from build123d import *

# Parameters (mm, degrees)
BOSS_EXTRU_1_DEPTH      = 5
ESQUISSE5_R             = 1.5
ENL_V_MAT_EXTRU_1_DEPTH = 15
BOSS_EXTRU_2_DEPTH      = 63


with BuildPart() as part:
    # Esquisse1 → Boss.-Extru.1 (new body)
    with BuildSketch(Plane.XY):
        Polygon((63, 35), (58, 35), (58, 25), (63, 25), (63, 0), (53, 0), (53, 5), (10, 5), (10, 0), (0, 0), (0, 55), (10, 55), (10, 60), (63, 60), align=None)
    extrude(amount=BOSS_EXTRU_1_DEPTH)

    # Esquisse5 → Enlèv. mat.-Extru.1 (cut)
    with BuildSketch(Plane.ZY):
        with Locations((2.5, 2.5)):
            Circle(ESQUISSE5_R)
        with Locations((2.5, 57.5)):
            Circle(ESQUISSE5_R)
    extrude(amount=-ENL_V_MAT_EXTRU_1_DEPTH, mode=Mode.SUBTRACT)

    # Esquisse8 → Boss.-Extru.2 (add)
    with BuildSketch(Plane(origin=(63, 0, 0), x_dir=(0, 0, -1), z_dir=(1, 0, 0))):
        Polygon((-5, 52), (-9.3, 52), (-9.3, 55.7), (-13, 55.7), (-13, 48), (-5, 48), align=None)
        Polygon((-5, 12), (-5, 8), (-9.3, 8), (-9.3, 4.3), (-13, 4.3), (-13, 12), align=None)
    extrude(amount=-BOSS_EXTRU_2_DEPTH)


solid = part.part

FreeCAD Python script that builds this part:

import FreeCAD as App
import Part
import Sketcher
from FreeCAD import Vector
Q = App.Units.Quantity

doc = App.newDocument("Part")
body = doc.addObject("PartDesign::Body", "Body")

sketch1 = body.newObject("Sketcher::SketchObject", "Sketch")
sketch1.AttachmentSupport = (doc.getObject("XY_Plane"), [""])
sketch1.MapMode = "FlatFace"
sketch1.addGeometry(Part.LineSegment(Vector(58, 35, 0), Vector(63, 35, 0)), False)
sketch1.addGeometry(Part.LineSegment(Vector(63, 35, 0), Vector(63, 60, 0)), False)
sketch1.addGeometry(Part.LineSegment(Vector(63, 60, 0), Vector(10, 60, 0)), False)
sketch1.addGeometry(Part.LineSegment(Vector(10, 60, 0), Vector(10, 55, 0)), False)
sketch1.addGeometry(Part.LineSegment(Vector(10, 55, 0), Vector(0, 55, 0)), False)
sketch1.addGeometry(Part.LineSegment(Vector(0, 55, 0), Vector(0, 0, 0)), False)
sketch1.addGeometry(Part.LineSegment(Vector(0, 0, 0), Vector(10, 0, 0)), False)
sketch1.addGeometry(Part.LineSegment(Vector(10, 0, 0), Vector(10, 5, 0)), False)
sketch1.addGeometry(Part.LineSegment(Vector(10, 5, 0), Vector(53, 5, 0)), False)
sketch1.addGeometry(Part.LineSegment(Vector(53, 5, 0), Vector(53, 0, 0)), False)
sketch1.addGeometry(Part.LineSegment(Vector(53, 0, 0), Vector(63, 0, 0)), False)
sketch1.addGeometry(Part.LineSegment(Vector(63, 0, 0), Vector(63, 25, 0)), False)
sketch1.addGeometry(Part.LineSegment(Vector(63, 25, 0), Vector(58, 25, 0)), False)
sketch1.addGeometry(Part.LineSegment(Vector(58, 25, 0), Vector(58, 35, 0)), False)
sketch1.addConstraint(Sketcher.Constraint("Coincident", 0, 2, 1, 1))
sketch1.addConstraint(Sketcher.Constraint("Coincident", 1, 2, 2, 1))
sketch1.addConstraint(Sketcher.Constraint("Coincident", 2, 2, 3, 1))
sketch1.addConstraint(Sketcher.Constraint("Coincident", 3, 2, 4, 1))
sketch1.addConstraint(Sketcher.Constraint("Coincident", 4, 2, 5, 1))
sketch1.addConstraint(Sketcher.Constraint("Coincident", 5, 2, 6, 1))
sketch1.addConstraint(Sketcher.Constraint("Coincident", 6, 2, 7, 1))
sketch1.addConstraint(Sketcher.Constraint("Coincident", 7, 2, 8, 1))
sketch1.addConstraint(Sketcher.Constraint("Coincident", 8, 2, 9, 1))
sketch1.addConstraint(Sketcher.Constraint("Coincident", 9, 2, 10, 1))
sketch1.addConstraint(Sketcher.Constraint("Coincident", 10, 2, 11, 1))
sketch1.addConstraint(Sketcher.Constraint("Coincident", 11, 2, 12, 1))
sketch1.addConstraint(Sketcher.Constraint("Coincident", 12, 2, 13, 1))
sketch1.addConstraint(Sketcher.Constraint("Coincident", 13, 2, 0, 1))
sketch1.addConstraint(Sketcher.Constraint("Horizontal", 0))
sketch1.addConstraint(Sketcher.Constraint("Vertical", 1))
sketch1.addConstraint(Sketcher.Constraint("Horizontal", 2))
sketch1.addConstraint(Sketcher.Constraint("Vertical", 3))
sketch1.addConstraint(Sketcher.Constraint("Horizontal", 4))
sketch1.addConstraint(Sketcher.Constraint("Vertical", 5))
sketch1.addConstraint(Sketcher.Constraint("Horizontal", 6))
sketch1.addConstraint(Sketcher.Constraint("Vertical", 7))
sketch1.addConstraint(Sketcher.Constraint("Horizontal", 8))
sketch1.addConstraint(Sketcher.Constraint("Vertical", 9))
sketch1.addConstraint(Sketcher.Constraint("Horizontal", 10))
sketch1.addConstraint(Sketcher.Constraint("Vertical", 11))
sketch1.addConstraint(Sketcher.Constraint("Horizontal", 12))
sketch1.addConstraint(Sketcher.Constraint("Vertical", 13))
sketch1.addConstraint(Sketcher.Constraint("Coincident", 5, 2, -1, 1))
sketch1.addConstraint(Sketcher.Constraint("PointOnObject", 9, 2, -1))
sketch1.addConstraint(Sketcher.Constraint("Vertical", 3, 2, 6, 2))
sketch1.addConstraint(Sketcher.Constraint("Vertical", 1, 2, 10, 2))
sketch1.addConstraint(Sketcher.Constraint("Equal", 6, 10))
sketch1.addConstraint(Sketcher.Constraint("Equal", 12, 3))
sketch1.addConstraint(Sketcher.Constraint("Equal", 3, 7))
sketch1.addConstraint(Sketcher.Constraint("Equal", 1, 11))
sketch1.addConstraint(Sketcher.Constraint("Equal", 10, 13))
sketch1.addConstraint(Sketcher.Constraint("DistanceX", 0, 1, 0, 2, Q("5 mm")))
sketch1.addConstraint(Sketcher.Constraint("DistanceX", 2, 2, 2, 1, Q("53 mm")))
sketch1.addConstraint(Sketcher.Constraint("DistanceX", 4, 2, 4, 1, Q("10 mm")))
sketch1.addConstraint(Sketcher.Constraint("DistanceY", 1, 1, 1, 2, Q("25 mm")))
pad1 = body.newObject("PartDesign::Pad", "Pad")
pad1.Profile = sketch1
pad1.Length = 5

sketch2 = body.newObject("Sketcher::SketchObject", "Sketch001")
sketch2.AttachmentSupport = (doc.getObject("YZ_Plane"), [""])
sketch2.MapMode = "FlatFace"
sketch2.addGeometry(Part.Circle(Vector(2.5, 2.5, 0), Vector(0, 0, 1), 1.5), False)
sketch2.addGeometry(Part.Circle(Vector(57.5, 2.5, 0), Vector(0, 0, 1), 1.5), False)
sketch2.addConstraint(Sketcher.Constraint("Equal", 0, 1))
sketch2.addConstraint(Sketcher.Constraint("Horizontal", 0, 3, 1, 3))
sketch2.addConstraint(Sketcher.Constraint("Diameter", 0, Q("3 mm")))
sketch2.addConstraint(Sketcher.Constraint("DistanceX", 0, 3, 1, 3, Q("55 mm")))
sketch2.addConstraint(Sketcher.Constraint("DistanceX", -1, 1, 0, 3, Q("2.5 mm")))
sketch2.addConstraint(Sketcher.Constraint("DistanceY", -1, 1, 0, 3, Q("2.5 mm")))
pocket1 = body.newObject("PartDesign::Pocket", "Pocket")
pocket1.Profile = sketch2
pocket1.Length = 15
pocket1.Reversed = True

sketch3 = body.newObject("Sketcher::SketchObject", "Sketch002")
sketch3.AttachmentSupport = (doc.getObject("YZ_Plane"), [""])
sketch3.MapMode = "FlatFace"
sketch3.AttachmentOffset = App.Placement(Vector(0, 0, 63), App.Rotation())
sketch3.addGeometry(Part.LineSegment(Vector(52, 5, 0), Vector(52, 9.3, 0)), False)
sketch3.addGeometry(Part.LineSegment(Vector(52, 9.3, 0), Vector(55.7, 9.3, 0)), False)
sketch3.addGeometry(Part.LineSegment(Vector(55.7, 9.3, 0), Vector(55.7, 13, 0)), False)
sketch3.addGeometry(Part.LineSegment(Vector(55.7, 13, 0), Vector(48, 13, 0)), False)
sketch3.addGeometry(Part.LineSegment(Vector(48, 13, 0), Vector(48, 5, 0)), False)
sketch3.addGeometry(Part.LineSegment(Vector(48, 5, 0), Vector(52, 5, 0)), False)
sketch3.addGeometry(Part.LineSegment(Vector(8, 5, 0), Vector(12, 5, 0)), False)
sketch3.addGeometry(Part.LineSegment(Vector(12, 5, 0), Vector(12, 13, 0)), False)
sketch3.addGeometry(Part.LineSegment(Vector(12, 13, 0), Vector(4.3, 13, 0)), False)
sketch3.addGeometry(Part.LineSegment(Vector(4.3, 13, 0), Vector(4.3, 9.3, 0)), False)
sketch3.addGeometry(Part.LineSegment(Vector(4.3, 9.3, 0), Vector(8, 9.3, 0)), False)
sketch3.addGeometry(Part.LineSegment(Vector(8, 9.3, 0), Vector(8, 5, 0)), False)
sketch3.addConstraint(Sketcher.Constraint("Coincident", 0, 2, 1, 1))
sketch3.addConstraint(Sketcher.Constraint("Coincident", 1, 2, 2, 1))
sketch3.addConstraint(Sketcher.Constraint("Coincident", 2, 2, 3, 1))
sketch3.addConstraint(Sketcher.Constraint("Coincident", 3, 2, 4, 1))
sketch3.addConstraint(Sketcher.Constraint("Coincident", 4, 2, 5, 1))
sketch3.addConstraint(Sketcher.Constraint("Coincident", 5, 2, 0, 1))
sketch3.addConstraint(Sketcher.Constraint("Coincident", 6, 2, 7, 1))
sketch3.addConstraint(Sketcher.Constraint("Coincident", 7, 2, 8, 1))
sketch3.addConstraint(Sketcher.Constraint("Coincident", 8, 2, 9, 1))
sketch3.addConstraint(Sketcher.Constraint("Coincident", 9, 2, 10, 1))
sketch3.addConstraint(Sketcher.Constraint("Coincident", 10, 2, 11, 1))
sketch3.addConstraint(Sketcher.Constraint("Coincident", 11, 2, 6, 1))
sketch3.addConstraint(Sketcher.Constraint("Vertical", 0))
sketch3.addConstraint(Sketcher.Constraint("Horizontal", 1))
sketch3.addConstraint(Sketcher.Constraint("Vertical", 2))
sketch3.addConstraint(Sketcher.Constraint("Horizontal", 3))
sketch3.addConstraint(Sketcher.Constraint("Vertical", 4))
sketch3.addConstraint(Sketcher.Constraint("Horizontal", 5))
sketch3.addConstraint(Sketcher.Constraint("Horizontal", 6))
sketch3.addConstraint(Sketcher.Constraint("Vertical", 7))
sketch3.addConstraint(Sketcher.Constraint("Horizontal", 8))
sketch3.addConstraint(Sketcher.Constraint("Vertical", 9))
sketch3.addConstraint(Sketcher.Constraint("Horizontal", 10))
sketch3.addConstraint(Sketcher.Constraint("Vertical", 11))
sketch3.addConstraint(Sketcher.Constraint("Horizontal", 5, 2, 6, 2))
sketch3.addConstraint(Sketcher.Constraint("Horizontal", 3, 2, 7, 2))
sketch3.addConstraint(Sketcher.Constraint("Horizontal", 1, 2, 9, 2))
sketch3.addConstraint(Sketcher.Constraint("Equal", 5, 6))
sketch3.addConstraint(Sketcher.Constraint("Equal", 3, 8))
sketch3.addConstraint(Sketcher.Constraint("Equal", 10, 2))
sketch3.addConstraint(Sketcher.Constraint("DistanceX", 5, 1, 5, 2, Q("4 mm")))
sketch3.addConstraint(Sketcher.Constraint("DistanceY", 4, 2, 4, 1, Q("8 mm")))
sketch3.addConstraint(Sketcher.Constraint("DistanceX", 1, 1, 1, 2, Q("3.7 mm")))
sketch3.addConstraint(Sketcher.Constraint("DistanceX", -1, 1, 0, 2, Q("52 mm")))
sketch3.addConstraint(Sketcher.Constraint("DistanceY", -1, 1, 2, 2, Q("13 mm")))
sketch3.addConstraint(Sketcher.Constraint("DistanceX", -1, 1, 6, 2, Q("12 mm")))
pad2 = body.newObject("PartDesign::Pad", "Pad001")
pad2.Profile = sketch3
pad2.Length = 63
pad2.Reversed = True

doc.recompute()
